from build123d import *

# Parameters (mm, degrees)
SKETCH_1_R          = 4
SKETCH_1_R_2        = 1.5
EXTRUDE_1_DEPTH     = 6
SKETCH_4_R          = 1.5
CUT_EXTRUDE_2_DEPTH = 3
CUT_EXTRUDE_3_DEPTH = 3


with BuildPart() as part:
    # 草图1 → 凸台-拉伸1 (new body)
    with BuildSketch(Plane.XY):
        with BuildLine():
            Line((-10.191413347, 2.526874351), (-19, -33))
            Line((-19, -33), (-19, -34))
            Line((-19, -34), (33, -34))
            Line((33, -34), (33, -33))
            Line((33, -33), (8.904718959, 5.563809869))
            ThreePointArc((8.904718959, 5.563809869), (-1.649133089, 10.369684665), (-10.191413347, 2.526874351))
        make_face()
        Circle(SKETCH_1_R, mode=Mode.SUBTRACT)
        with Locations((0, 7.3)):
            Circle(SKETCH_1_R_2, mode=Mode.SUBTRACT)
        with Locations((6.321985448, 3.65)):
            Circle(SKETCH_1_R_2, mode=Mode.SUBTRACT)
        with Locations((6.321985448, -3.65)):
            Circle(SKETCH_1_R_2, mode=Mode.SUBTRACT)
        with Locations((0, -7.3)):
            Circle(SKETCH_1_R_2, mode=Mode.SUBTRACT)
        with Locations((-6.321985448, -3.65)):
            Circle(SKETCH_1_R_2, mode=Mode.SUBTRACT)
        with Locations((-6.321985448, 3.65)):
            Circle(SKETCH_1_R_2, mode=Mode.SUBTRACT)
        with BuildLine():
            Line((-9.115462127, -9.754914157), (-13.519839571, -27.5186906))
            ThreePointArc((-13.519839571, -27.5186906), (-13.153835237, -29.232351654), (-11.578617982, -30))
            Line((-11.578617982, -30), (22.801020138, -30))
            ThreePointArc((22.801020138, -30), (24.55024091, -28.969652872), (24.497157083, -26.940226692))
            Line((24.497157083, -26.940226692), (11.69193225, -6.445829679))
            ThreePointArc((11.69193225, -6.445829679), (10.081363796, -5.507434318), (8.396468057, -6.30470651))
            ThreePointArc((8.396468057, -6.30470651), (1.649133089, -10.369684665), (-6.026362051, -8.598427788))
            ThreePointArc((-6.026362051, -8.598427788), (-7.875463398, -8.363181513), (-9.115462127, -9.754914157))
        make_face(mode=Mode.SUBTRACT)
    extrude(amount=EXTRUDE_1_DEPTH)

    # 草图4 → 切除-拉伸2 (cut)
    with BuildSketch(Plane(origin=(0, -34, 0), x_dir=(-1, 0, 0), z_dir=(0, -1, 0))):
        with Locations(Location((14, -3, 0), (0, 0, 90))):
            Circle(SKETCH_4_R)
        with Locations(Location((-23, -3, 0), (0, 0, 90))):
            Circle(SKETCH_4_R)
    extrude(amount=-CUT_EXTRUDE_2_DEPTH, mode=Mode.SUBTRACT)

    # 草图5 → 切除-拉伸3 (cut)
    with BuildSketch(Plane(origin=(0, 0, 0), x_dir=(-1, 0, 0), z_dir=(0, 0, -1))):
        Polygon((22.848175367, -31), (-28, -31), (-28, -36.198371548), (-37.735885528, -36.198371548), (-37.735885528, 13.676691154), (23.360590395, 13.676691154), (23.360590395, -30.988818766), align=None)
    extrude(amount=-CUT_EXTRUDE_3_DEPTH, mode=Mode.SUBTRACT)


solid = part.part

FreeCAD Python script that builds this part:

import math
import FreeCAD as App
import Part
import Sketcher

V = App.Vector
Q = App.Units.Quantity


def add_polygon(sketch, points):
    """Adds a closed chain of lines whose ends are joined by coincident constraints."""
    first, n = sketch.GeometryCount, len(points)
    for a, b in zip(points, points[1:] + points[:1]):
        sketch.addGeometry(Part.LineSegment(App.Vector(*a, 0), App.Vector(*b, 0)), False)
    for i in range(n):
        sketch.addConstraint(Sketcher.Constraint("Coincident", first + i, 2, first + (i + 1) % n, 1))

doc = App.newDocument("Part")
params = doc.addObject("Spreadsheet::Sheet", "Params")
for row, (alias, value) in enumerate([
    ("sketch1_diameter", "3 mm"),
    ("sketch1_diameter2", "8 mm"),
    ("sketch1_radius", "2 mm"),
    ("sketch1_radius2", "10.5 mm"),
    ("sketch1_width", "52 mm"),
    ("pad1_length", "6 mm"),
    ("sketch2_diameter", "3 mm"),
    ("pocket1_length", "3 mm"),
    ("pocket2_length", "3 mm"),
], start=1):
    params.set(f"A{row}", alias)
    params.set(f"B{row}", "=" + value)
    params.setAlias(f"B{row}", alias)

body = doc.addObject("PartDesign::Body", "Body")

# Sketch on XY plane
sketch1 = body.newObject("Sketcher::SketchObject", "Sketch")
sketch1.AttachmentSupport = (doc.getObject("XY_Plane"), [""])
sketch1.MapMode = "FlatFace"
sketch1.addGeometry([
    Part.LineSegment(V(-10.2, 2.5, 0), V(-19, -33, 0)),  # 0
    Part.LineSegment(V(-19, -33, 0), V(-19, -34, 0)),  # 1
    Part.LineSegment(V(-19, -34, 0), V(33, -34, 0)),  # 2
    Part.LineSegment(V(33, -34, 0), V(33, -33, 0)),  # 3
    Part.LineSegment(V(33, -33, 0), V(8.9, 5.6, 0)),  # 4
    Part.ArcOfCircle(Part.Circle(V(0, 0, 0), V(0, 0, 1), 10.5), math.radians(32), math.radians(166)),  # 5
    Part.LineSegment(V(-13.5, -27.5, 0), V(-9.1, -9.8, 0)),  # 6
    Part.ArcOfCircle(Part.Circle(V(-7.2, -10.2, 0), V(0, 0, 1), 2), math.radians(55), math.radians(166)),  # 7
    Part.ArcOfCircle(Part.Circle(V(0, 0, 0), V(0, 0, 1), 10.5), math.radians(-125), math.radians(-37)),  # 8
    Part.ArcOfCircle(Part.Circle(V(10, -7.5, 0), V(0, 0, 1), 2), math.radians(32), math.radians(143)),  # 9
    Part.LineSegment(V(11.7, -6.4, 0), V(24.5, -26.9, 0)),  # 10
    Part.ArcOfCircle(Part.Circle(V(22.8, -28, 0), V(0, 0, 1), 2), math.radians(-90), math.radians(32)),  # 11
    Part.LineSegment(V(22.8, -30, 0), V(-11.6, -30, 0)),  # 12
    Part.ArcOfCircle(Part.Circle(V(-11.6, -28, 0), V(0, 0, 1), 2), math.radians(166), math.radians(270)),  # 13
    Part.Circle(V(-6.3, -3.6, 0), V(0, 0, 1), 1.5),  # 14
    Part.Circle(V(0, -7.3, 0), V(0, 0, 1), 1.5),  # 15
    Part.Circle(V(-6.3, 3.6, 0), V(0, 0, 1), 1.5),  # 16
    Part.Circle(V(0, 0, 0), V(0, 0, 1), 4),  # 17
    Part.Circle(V(0, 7.3, 0), V(0, 0, 1), 1.5),  # 18
    Part.Circle(V(6.3, -3.6, 0), V(0, 0, 1), 1.5),  # 19
    Part.Circle(V(6.3, 3.6, 0), V(0, 0, 1), 1.5),  # 20
], False)
sketch1.addConstraint([
    Sketcher.Constraint("Coincident", 0, 2, 1, 1),
    Sketcher.Constraint("Coincident", 1, 2, 2, 1),
    Sketcher.Constraint("Coincident", 2, 2, 3, 1),
    Sketcher.Constraint("Coincident", 3, 2, 4, 1),
    Sketcher.Constraint("Tangent", 4, 2, 5, 1),
    Sketcher.Constraint("Tangent", 5, 2, 0, 1),
    Sketcher.Constraint("Tangent", 6, 2, 7, 2),
    Sketcher.Constraint("Tangent", 7, 1, 8, 1),
    Sketcher.Constraint("Tangent", 8, 2, 9, 2),
    Sketcher.Constraint("Tangent", 9, 1, 10, 1),
    Sketcher.Constraint("Tangent", 10, 2, 11, 2),
    Sketcher.Constraint("Tangent", 11, 1, 12, 1),
    Sketcher.Constraint("Tangent", 12, 2, 13, 2),
    Sketcher.Constraint("Tangent", 13, 1, 6, 1),
    Sketcher.Constraint("Vertical", 1),
    Sketcher.Constraint("Horizontal", 2),
    Sketcher.Constraint("Vertical", 3),
    Sketcher.Constraint("Horizontal", 12),
    Sketcher.Constraint("Coincident", 5, 3, -1, 1),
    Sketcher.Constraint("Coincident", 8, 3, -1, 1),
    Sketcher.Constraint("Coincident", 17, 3, -1, 1),
    Sketcher.Constraint("Equal", 5, 8),
    Sketcher.Constraint("Equal", 7, 9),
    Sketcher.Constraint("Equal", 9, 11),
    Sketcher.Constraint("Equal", 11, 13),
    Sketcher.Constraint("Equal", 14, 15),
    Sketcher.Constraint("Equal", 15, 16),
    Sketcher.Constraint("Equal", 16, 18),
    Sketcher.Constraint("Equal", 18, 19),
    Sketcher.Constraint("Equal", 19, 20),
    Sketcher.Constraint("Symmetric", 15, 3, 18, 3, -1, 1),
    Sketcher.Constraint("Symmetric", 16, 3, 19, 3, -1, 1),
    Sketcher.Constraint("Symmetric", 14, 3, 20, 3, -1, 1),
    Sketcher.Constraint("Symmetric", 14, 3, 19, 3, -2),
    Sketcher.Constraint("PointOnObject", 15, 3, -2),
    Sketcher.Constraint("Parallel", 0, 6),
    Sketcher.Constraint("Parallel", 4, 10),
    Sketcher.Constraint("Horizontal", 0, 2, 3, 2),
    Sketcher.Constraint("Diameter", 14, Q("3 mm")),
    Sketcher.Constraint("Diameter", 17, Q("8 mm")),
    Sketcher.Constraint("Radius", 7, Q("2 mm")),
    Sketcher.Constraint("Radius", 5, Q("10.5 mm")),
    Sketcher.Constraint("DistanceX", 2, 1, 2, 2, Q("52 mm")),
    Sketcher.Constraint("DistanceY", 1, 2, 1, 1, Q("1 mm")),
    Sketcher.Constraint("DistanceY", 11, 3, -1, 1, Q("28 mm")),
    Sketcher.Constraint("DistanceX", 0, 2, -1, 1, Q("19 mm")),
    Sketcher.Constraint("DistanceY", 0, 2, -1, 1, Q("33 mm")),
    Sketcher.Constraint("DistanceY", 15, 3, -1, 1, Q("7.3 mm")),
    Sketcher.Constraint("DistanceY", 14, 3, 16, 3, Q("7.3 mm")),
    Sketcher.Constraint("DistanceX", 12, 2, 12, 1, Q("34.379638 mm")),
    Sketcher.Constraint("DistanceX", 6, 2, 7, 1, Q("3.0891 mm")),
    Sketcher.Constraint("DistanceX", 14, 3, 9, 3, Q("16.317781 mm")),
])
sketch1.setExpression("Constraints[38]", "Params.sketch1_diameter")
sketch1.setExpression("Constraints[39]", "Params.sketch1_diameter2")
sketch1.setExpression("Constraints[40]", "Params.sketch1_radius")
sketch1.setExpression("Constraints[41]", "Params.sketch1_radius2")
sketch1.setExpression("Constraints[42]", "Params.sketch1_width")
pad1 = body.newObject("PartDesign::Pad", "Pad")
pad1.Profile = sketch1
pad1.setExpression("Length", "Params.pad1_length")

# Sketch on XZ plane
sketch2 = body.newObject("Sketcher::SketchObject", "Sketch001")
sketch2.AttachmentSupport = (doc.getObject("XZ_Plane"), [""])
sketch2.MapMode = "FlatFace"
sketch2.AttachmentOffset = App.Placement(V(0, 0, 34), App.Rotation())
sketch2.addGeometry([
    Part.Circle(V(-14, 3, 0), V(0, 0, 1), 1.5),
    Part.Circle(V(23, 3, 0), V(0, 0, 1), 1.5),
], False)
sketch2.addConstraint([
    Sketcher.Constraint("Equal", 0, 1),
    Sketcher.Constraint("Horizontal", 0, 3, 1, 3),
    Sketcher.Constraint("Diameter", 0, Q("3 mm")),
    Sketcher.Constraint("DistanceX", 0, 3, -1, 1, Q("14 mm")),
    Sketcher.Constraint("DistanceY", -1, 1, 0, 3, Q("3 mm")),
    Sketcher.Constraint("DistanceX", -1, 1, 1, 3, Q("23 mm")),
])
sketch2.setExpression("Constraints[2]", "Params.sketch2_diameter")
pocket1 = body.newObject("PartDesign::Pocket", "Pocket")
pocket1.Profile = sketch2
pocket1.setExpression("Length", "Params.pocket1_length")

# Sketch on XY plane
sketch3 = body.newObject("Sketcher::SketchObject", "Sketch002")
sketch3.AttachmentSupport = (doc.getObject("XY_Plane"), [""])
sketch3.MapMode = "FlatFace"
add_polygon(sketch3, [(28, -31), (-22.8, -31), (-23.4, -31), (-23.4, 13.7), (37.7, 13.7), (37.7, -36.2), (28, -36.2)])  # lines 0-6
sketch3.addConstraint([
    Sketcher.Constraint("Horizontal", 0),
    Sketcher.Constraint("Vertical", 2),
    Sketcher.Constraint("Horizontal", 3),
    Sketcher.Constraint("Vertical", 4),
    Sketcher.Constraint("Horizontal", 5),
    Sketcher.Constraint("Vertical", 6),
    Sketcher.Constraint("DistanceY", 0, 2, -1, 1, Q("31 mm")),
    Sketcher.Constraint("DistanceX", -1, 1, 5, 2, Q("28 mm")),
    Sketcher.Constraint("DistanceY", 2, 1, 2, 2, Q("44.66551 mm")),
    Sketcher.Constraint("DistanceY", 6, 1, 6, 2, Q("5.198372 mm")),
    Sketcher.Constraint("DistanceX", 0, 2, 0, 1, Q("50.848175 mm")),
    Sketcher.Constraint("DistanceX", 3, 1, 3, 2, Q("61.096476 mm")),
    Sketcher.Constraint("DistanceX", 5, 2, 5, 1, Q("9.735886 mm")),
    Sketcher.Constraint("DistanceY", 4, 2, 4, 1, Q("49.875063 mm")),
])
pocket2 = body.newObject("PartDesign::Pocket", "Pocket001")
pocket2.Profile = sketch3
pocket2.setExpression("Length", "Params.pocket2_length")
pocket2.Reversed = True

doc.recompute()
